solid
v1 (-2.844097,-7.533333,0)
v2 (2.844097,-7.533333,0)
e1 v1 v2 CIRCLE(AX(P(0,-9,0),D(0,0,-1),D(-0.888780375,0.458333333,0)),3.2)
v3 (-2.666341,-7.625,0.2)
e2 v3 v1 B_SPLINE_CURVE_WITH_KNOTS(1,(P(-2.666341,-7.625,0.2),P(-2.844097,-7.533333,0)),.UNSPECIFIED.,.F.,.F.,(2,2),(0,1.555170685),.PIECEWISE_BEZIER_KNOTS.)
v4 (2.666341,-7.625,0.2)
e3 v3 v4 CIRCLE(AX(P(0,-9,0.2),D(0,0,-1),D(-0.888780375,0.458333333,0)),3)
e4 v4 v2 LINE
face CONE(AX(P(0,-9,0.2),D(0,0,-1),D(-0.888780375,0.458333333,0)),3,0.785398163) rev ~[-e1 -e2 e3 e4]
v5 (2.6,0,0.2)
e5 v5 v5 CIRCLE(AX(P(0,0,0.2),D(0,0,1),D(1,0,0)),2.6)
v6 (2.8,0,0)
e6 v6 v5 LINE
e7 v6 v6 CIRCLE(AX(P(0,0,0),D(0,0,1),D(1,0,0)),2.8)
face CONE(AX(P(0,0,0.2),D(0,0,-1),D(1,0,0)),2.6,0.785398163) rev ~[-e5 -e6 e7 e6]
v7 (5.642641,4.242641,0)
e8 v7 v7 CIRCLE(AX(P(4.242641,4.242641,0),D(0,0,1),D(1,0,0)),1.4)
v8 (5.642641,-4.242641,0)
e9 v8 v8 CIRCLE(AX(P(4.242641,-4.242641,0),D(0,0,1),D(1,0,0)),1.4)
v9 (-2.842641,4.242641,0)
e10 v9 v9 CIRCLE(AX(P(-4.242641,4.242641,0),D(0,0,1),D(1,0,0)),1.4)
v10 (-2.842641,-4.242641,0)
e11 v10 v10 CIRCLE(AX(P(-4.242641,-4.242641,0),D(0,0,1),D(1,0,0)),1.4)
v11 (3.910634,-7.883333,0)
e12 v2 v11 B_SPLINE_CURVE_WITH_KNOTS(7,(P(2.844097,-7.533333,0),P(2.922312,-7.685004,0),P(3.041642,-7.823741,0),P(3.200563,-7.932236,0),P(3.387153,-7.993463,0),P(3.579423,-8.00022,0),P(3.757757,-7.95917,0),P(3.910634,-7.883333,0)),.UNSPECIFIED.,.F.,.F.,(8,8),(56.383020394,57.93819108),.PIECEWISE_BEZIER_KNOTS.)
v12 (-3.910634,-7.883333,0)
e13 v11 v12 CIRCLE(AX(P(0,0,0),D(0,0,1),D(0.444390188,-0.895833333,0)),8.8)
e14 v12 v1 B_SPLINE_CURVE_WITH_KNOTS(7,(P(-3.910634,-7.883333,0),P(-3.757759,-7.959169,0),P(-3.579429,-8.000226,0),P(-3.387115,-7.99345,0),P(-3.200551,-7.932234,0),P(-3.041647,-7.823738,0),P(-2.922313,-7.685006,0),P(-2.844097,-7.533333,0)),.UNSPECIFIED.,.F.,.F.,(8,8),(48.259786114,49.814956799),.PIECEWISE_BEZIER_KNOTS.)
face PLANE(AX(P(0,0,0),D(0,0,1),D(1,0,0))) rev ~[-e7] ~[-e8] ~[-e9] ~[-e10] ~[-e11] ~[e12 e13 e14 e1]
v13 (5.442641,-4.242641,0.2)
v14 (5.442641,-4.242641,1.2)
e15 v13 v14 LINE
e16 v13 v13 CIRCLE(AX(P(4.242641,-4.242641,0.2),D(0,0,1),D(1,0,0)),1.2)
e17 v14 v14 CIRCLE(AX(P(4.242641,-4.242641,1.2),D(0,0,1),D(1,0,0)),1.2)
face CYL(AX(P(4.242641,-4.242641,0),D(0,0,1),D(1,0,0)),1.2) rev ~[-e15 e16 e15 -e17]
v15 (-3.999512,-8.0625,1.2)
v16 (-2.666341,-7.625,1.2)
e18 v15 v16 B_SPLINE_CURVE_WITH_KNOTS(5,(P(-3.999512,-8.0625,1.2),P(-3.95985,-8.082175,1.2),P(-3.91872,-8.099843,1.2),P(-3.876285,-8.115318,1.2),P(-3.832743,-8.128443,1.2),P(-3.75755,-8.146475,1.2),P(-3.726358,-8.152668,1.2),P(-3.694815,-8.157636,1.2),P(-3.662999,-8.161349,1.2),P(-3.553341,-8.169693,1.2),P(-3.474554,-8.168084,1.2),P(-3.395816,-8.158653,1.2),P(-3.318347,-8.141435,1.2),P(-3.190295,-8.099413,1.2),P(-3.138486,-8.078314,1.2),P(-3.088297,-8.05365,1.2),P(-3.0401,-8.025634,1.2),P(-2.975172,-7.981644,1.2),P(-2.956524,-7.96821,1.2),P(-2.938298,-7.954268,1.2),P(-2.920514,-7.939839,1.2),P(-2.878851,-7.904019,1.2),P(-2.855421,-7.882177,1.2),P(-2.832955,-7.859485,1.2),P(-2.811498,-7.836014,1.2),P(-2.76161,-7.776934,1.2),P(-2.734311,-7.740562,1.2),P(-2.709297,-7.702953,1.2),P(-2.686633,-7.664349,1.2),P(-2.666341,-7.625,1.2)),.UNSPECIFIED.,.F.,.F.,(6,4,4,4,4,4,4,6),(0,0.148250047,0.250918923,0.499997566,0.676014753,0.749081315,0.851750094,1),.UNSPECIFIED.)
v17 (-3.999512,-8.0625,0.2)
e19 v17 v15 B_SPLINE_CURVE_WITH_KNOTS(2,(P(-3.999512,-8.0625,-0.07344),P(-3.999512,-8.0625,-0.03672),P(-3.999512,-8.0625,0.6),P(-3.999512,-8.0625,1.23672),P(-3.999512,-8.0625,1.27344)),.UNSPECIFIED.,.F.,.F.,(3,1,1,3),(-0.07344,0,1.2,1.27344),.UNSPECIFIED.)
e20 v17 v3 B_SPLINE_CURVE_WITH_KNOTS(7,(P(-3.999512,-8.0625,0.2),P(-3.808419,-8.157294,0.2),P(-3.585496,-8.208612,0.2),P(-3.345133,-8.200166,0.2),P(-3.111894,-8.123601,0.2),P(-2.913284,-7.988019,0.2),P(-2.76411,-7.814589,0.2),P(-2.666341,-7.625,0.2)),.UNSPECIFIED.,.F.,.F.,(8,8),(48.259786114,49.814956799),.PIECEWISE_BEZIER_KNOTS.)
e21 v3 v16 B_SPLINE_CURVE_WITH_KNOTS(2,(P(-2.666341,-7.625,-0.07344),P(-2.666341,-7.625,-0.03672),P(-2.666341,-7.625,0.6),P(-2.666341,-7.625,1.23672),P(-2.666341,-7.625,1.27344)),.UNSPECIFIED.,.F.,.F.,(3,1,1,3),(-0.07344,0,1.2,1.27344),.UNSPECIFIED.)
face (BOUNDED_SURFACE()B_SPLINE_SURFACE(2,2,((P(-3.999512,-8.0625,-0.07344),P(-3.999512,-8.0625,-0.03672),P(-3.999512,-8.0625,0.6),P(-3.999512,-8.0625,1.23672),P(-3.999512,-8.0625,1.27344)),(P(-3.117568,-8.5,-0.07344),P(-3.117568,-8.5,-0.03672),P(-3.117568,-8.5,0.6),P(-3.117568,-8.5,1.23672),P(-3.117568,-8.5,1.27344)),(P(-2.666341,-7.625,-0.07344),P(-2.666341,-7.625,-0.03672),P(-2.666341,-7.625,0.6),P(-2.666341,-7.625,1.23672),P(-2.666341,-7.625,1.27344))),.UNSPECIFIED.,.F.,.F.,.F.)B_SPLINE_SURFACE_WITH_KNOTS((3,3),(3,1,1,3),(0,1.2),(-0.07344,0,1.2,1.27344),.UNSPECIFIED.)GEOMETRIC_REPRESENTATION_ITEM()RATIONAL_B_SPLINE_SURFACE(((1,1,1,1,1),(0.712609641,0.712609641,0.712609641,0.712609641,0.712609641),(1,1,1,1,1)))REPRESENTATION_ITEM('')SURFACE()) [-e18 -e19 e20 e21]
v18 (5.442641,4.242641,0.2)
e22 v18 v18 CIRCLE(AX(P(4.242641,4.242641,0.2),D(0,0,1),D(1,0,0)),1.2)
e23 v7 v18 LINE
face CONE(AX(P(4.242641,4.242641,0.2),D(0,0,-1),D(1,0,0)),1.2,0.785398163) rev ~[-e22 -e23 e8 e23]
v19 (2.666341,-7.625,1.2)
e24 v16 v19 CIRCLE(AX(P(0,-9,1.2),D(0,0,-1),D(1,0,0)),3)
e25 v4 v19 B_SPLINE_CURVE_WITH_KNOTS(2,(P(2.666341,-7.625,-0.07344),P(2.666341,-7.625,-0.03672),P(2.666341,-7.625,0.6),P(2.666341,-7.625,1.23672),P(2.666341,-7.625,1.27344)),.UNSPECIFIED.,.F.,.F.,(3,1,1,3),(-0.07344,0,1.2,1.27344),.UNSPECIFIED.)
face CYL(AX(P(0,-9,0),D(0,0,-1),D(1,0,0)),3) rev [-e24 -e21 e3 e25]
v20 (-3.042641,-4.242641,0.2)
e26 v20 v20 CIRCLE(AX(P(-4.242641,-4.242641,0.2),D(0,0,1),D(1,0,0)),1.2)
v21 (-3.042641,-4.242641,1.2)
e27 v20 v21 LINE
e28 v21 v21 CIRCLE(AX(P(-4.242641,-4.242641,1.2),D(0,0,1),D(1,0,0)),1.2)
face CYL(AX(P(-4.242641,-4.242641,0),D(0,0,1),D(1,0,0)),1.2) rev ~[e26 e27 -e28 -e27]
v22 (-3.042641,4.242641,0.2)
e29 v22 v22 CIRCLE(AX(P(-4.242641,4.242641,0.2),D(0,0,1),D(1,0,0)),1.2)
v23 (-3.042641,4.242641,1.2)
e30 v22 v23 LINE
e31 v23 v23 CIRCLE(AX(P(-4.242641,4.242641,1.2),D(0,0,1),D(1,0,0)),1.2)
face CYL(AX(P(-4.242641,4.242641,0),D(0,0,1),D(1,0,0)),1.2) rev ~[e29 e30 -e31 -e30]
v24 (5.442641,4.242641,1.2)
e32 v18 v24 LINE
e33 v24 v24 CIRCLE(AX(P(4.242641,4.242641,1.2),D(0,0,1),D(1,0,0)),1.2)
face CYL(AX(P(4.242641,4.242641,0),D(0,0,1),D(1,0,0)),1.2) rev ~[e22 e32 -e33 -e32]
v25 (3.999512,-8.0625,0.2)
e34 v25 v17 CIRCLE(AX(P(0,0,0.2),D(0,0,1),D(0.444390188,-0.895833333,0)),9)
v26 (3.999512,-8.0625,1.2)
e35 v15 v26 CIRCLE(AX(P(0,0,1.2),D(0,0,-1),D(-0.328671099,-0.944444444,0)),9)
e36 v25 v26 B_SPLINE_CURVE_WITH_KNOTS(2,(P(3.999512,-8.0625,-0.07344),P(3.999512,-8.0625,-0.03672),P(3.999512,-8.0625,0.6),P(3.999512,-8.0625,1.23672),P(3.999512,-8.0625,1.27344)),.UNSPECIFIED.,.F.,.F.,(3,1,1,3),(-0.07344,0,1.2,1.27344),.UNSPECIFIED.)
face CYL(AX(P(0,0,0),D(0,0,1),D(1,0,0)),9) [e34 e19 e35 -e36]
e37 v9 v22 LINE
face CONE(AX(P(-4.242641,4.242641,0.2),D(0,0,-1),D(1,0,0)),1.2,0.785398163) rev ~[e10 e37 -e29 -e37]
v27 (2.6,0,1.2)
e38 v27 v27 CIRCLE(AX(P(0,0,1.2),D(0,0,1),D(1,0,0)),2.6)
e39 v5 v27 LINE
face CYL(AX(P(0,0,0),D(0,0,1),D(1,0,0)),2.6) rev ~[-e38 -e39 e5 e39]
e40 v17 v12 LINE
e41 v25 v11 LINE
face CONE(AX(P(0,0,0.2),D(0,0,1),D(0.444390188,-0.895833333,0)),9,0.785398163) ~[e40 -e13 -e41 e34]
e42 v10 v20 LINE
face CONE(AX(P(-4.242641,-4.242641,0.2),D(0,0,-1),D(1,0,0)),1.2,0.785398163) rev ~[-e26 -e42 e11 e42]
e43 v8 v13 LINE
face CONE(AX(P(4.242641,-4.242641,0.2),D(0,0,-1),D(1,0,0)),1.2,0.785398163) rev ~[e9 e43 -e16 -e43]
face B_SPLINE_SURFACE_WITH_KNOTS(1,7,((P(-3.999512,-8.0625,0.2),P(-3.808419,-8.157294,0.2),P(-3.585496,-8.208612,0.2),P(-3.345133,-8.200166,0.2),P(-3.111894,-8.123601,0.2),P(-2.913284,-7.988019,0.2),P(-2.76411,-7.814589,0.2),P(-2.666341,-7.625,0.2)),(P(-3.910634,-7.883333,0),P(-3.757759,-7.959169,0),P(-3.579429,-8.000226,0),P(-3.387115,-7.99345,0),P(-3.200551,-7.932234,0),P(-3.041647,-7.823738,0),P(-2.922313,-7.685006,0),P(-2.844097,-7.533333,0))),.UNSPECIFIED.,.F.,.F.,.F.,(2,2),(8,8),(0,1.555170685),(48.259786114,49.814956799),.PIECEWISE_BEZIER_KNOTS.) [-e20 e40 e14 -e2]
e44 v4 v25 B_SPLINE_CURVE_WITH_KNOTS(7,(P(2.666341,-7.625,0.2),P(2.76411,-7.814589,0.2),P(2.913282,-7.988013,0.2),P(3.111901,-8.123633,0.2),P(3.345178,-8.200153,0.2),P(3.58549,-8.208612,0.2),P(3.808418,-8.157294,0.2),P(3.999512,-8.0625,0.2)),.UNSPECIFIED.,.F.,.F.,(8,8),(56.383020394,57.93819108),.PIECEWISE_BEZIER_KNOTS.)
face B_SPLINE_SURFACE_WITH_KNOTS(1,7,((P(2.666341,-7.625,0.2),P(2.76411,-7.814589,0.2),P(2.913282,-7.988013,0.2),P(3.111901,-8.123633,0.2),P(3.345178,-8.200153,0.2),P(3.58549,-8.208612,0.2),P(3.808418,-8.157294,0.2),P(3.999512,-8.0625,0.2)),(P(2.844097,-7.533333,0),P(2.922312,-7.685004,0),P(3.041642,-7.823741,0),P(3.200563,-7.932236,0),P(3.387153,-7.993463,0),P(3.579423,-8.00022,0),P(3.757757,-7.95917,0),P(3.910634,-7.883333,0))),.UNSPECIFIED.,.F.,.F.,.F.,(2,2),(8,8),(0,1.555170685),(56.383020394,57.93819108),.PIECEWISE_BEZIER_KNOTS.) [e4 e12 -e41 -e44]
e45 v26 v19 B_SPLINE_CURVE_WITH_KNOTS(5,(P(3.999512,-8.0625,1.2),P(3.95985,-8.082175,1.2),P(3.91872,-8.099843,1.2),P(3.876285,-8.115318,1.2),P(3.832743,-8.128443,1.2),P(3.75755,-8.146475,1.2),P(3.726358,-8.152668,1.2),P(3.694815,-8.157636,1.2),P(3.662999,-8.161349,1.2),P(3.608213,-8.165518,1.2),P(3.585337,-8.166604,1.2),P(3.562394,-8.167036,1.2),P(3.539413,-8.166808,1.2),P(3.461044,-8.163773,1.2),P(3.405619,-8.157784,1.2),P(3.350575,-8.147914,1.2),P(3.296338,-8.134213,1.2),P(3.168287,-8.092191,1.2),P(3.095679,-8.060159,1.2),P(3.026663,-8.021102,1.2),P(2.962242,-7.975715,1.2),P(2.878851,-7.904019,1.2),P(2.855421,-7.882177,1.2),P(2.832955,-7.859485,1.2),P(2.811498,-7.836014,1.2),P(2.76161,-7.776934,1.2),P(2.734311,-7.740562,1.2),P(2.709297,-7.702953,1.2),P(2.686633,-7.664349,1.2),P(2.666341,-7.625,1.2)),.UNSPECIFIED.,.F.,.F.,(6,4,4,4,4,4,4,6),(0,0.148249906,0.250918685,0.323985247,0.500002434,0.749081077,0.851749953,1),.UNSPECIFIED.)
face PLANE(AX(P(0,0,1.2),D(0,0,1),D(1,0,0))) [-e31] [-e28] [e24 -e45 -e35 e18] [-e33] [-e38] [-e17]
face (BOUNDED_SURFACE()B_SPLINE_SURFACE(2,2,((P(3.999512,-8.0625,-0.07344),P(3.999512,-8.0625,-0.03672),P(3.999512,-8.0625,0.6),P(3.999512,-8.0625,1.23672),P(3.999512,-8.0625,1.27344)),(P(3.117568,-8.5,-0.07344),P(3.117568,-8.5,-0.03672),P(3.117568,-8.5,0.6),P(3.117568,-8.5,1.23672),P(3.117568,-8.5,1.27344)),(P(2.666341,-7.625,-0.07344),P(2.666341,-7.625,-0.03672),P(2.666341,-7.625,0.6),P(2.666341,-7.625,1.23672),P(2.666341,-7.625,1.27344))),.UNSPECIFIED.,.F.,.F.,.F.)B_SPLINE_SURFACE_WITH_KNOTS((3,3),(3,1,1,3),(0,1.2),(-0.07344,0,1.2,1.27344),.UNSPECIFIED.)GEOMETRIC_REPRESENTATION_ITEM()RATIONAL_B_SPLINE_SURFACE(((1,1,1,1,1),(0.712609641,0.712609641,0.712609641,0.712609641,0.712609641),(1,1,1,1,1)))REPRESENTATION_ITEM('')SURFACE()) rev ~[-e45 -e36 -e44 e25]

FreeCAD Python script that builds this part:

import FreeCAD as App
import Part
import Sketcher
from FreeCAD import Vector
Q = App.Units.Quantity


def edges_at(feature, points):
    """Names of the edges that pass closest to the given points."""
    edges = feature.Shape.Edges
    near = lambda p: min(range(len(edges)), key=lambda i: edges[i].distToShape(Part.Vertex(*p))[0])
    return sorted({f"Edge{near(p) + 1}" for p in points})

doc = App.newDocument("Part")
body = doc.addObject("PartDesign::Body", "Body")

# Sketch on XY plane
sketch1 = body.newObject("Sketcher::SketchObject", "Sketch")
sketch1.AttachmentSupport = (doc.getObject("XY_Plane"), [""])
sketch1.MapMode = "FlatFace"
sketch1.addGeometry(Part.Circle(Vector(0, 0, 0), Vector(0, 0, 1), 9), False)
sketch1.addGeometry(Part.Circle(Vector(-4.2, -4.2, 0), Vector(0, 0, 1), 1.2), False)
sketch1.addGeometry(Part.Circle(Vector(4.2, -4.2, 0), Vector(0, 0, 1), 1.2), False)
sketch1.addGeometry(Part.Circle(Vector(0, 0, 0), Vector(0, 0, 1), 2.6), False)
sketch1.addGeometry(Part.Circle(Vector(-4.2, 4.2, 0), Vector(0, 0, 1), 1.2), False)
sketch1.addGeometry(Part.Circle(Vector(4.2, 4.2, 0), Vector(0, 0, 1), 1.2), False)
sketch1.addConstraint(Sketcher.Constraint("Coincident", 0, 3, -1, 1))
sketch1.addConstraint(Sketcher.Constraint("Coincident", 3, 3, -1, 1))
sketch1.addConstraint(Sketcher.Constraint("Equal", 1, 2))
sketch1.addConstraint(Sketcher.Constraint("Equal", 2, 4))
sketch1.addConstraint(Sketcher.Constraint("Equal", 4, 5))
sketch1.addConstraint(Sketcher.Constraint("Symmetric", 2, 3, 4, 3, -1, 1))
sketch1.addConstraint(Sketcher.Constraint("Symmetric", 1, 3, 5, 3, -1, 1))
sketch1.addConstraint(Sketcher.Constraint("Symmetric", 1, 3, 2, 3, -2))
sketch1.addConstraint(Sketcher.Constraint("Diameter", 0, Q("18 mm")))
sketch1.addConstraint(Sketcher.Constraint("Diameter", 1, Q("2.4 mm")))
sketch1.addConstraint(Sketcher.Constraint("Diameter", 3, Q("5.2 mm")))
sketch1.addConstraint(Sketcher.Constraint("DistanceX", 1, 3, -1, 1, Q("4.242641 mm")))
sketch1.addConstraint(Sketcher.Constraint("DistanceY", 1, 3, -1, 1, Q("4.242641 mm")))

# Sketch on XZ plane
sketch2 = body.newObject("Sketcher::SketchObject", "Sketch001")
sketch2.AttachmentSupport = (doc.getObject("XZ_Plane"), [""])
sketch2.MapMode = "FlatFace"
sketch2.addGeometry(Part.LineSegment(Vector(0, 0, 0), Vector(0, 1.2, 0)), False)
sketch2.addConstraint(Sketcher.Constraint("Vertical", 0))
sketch2.addConstraint(Sketcher.Constraint("Coincident", 0, 1, -1, 1))
sketch2.addConstraint(Sketcher.Constraint("DistanceY", 0, 1, 0, 2, Q("1.2 mm")))
doc.recompute()

additivepipe = body.newObject("PartDesign::AdditivePipe", "AdditivePipe")
additivepipe.Profile = sketch1
additivepipe.Spine = (sketch2, ["Edge1"])

# Sketch on XY plane
sketch3 = body.newObject("Sketcher::SketchObject", "Sketch002")
sketch3.AttachmentSupport = (doc.getObject("XY_Plane"), [""])
sketch3.MapMode = "FlatFace"
sketch3.addGeometry(Part.Circle(Vector(0, -9, 0), Vector(0, 0, 1), 3), False)
sketch3.addConstraint(Sketcher.Constraint("PointOnObject", 0, 3, -2))
sketch3.addConstraint(Sketcher.Constraint("Diameter", 0, Q("6 mm")))
sketch3.addConstraint(Sketcher.Constraint("DistanceY", 0, 3, -1, 1, Q("9 mm")))
pocket1 = body.newObject("PartDesign::Pocket", "Pocket")
pocket1.Profile = sketch3
pocket1.Type = "ThroughAll"
pocket1.Reversed = True
doc.recompute()

fillet = body.newObject("PartDesign::Fillet", "Fillet")
fillet.Base = (pocket1, edges_at(pocket1, [(-2.958, -8.5, 0.6), (2.958, -8.5, 0.6)]))
fillet.Radius = 1
doc.recompute()

chamfer = body.newObject("PartDesign::Chamfer", "Chamfer")
chamfer.Base = (fillet, edges_at(fillet, [
    (0, 9, 0),
    (3.243, -8.117, 0),
    (-3.243, -8.117, 0),
    (0, -6, 0),
    (-5.443, -4.243, 0),
    (3.043, -4.243, 0),
    (-2.6, 0, 0),
    (-5.443, 4.243, 0),
    (3.043, 4.243, 0),
]))
chamfer.Size = 0.2

doc.recompute()
